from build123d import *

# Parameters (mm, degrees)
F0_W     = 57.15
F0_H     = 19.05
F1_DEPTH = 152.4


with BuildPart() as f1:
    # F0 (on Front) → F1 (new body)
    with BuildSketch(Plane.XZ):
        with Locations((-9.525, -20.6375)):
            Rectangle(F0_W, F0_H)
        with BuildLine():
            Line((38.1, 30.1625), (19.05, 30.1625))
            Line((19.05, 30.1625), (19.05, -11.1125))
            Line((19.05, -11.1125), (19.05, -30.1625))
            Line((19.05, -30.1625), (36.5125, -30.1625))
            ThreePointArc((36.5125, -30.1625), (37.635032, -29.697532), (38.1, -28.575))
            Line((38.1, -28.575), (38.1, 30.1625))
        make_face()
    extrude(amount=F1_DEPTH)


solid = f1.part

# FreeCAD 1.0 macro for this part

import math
import FreeCAD as App
import Part
import Sketcher

V = App.Vector
Q = App.Units.Quantity

doc = App.newDocument("Part")
body = doc.addObject("PartDesign::Body", "Body")

sketch1 = body.newObject("Sketcher::SketchObject", "Sketch")
sketch1.AttachmentSupport = (doc.getObject("XZ_Plane"), [""])
sketch1.MapMode = "FlatFace"
sketch1.addGeometry([
    Part.LineSegment(V(-38.1, -11.1, 0), V(-38.1, -30.2, 0)),
    Part.LineSegment(V(-38.1, -30.2, 0), V(36.5, -30.2, 0)),
    Part.ArcOfCircle(Part.Circle(V(36.5, -28.6, 0), V(0, 0, 1), 1.6), math.radians(-90), math.radians(0)),
    Part.LineSegment(V(38.1, -28.6, 0), V(38.1, 30.2, 0)),
    Part.LineSegment(V(38.1, 30.2, 0), V(19.1, 30.2, 0)),
    Part.LineSegment(V(19.1, 30.2, 0), V(19.1, -11.1, 0)),
    Part.LineSegment(V(19.1, -11.1, 0), V(-38.1, -11.1, 0)),
], False)
sketch1.addConstraint([
    Sketcher.Constraint("Coincident", 0, 2, 1, 1),
    Sketcher.Constraint("Tangent", 1, 2, 2, 1),
    Sketcher.Constraint("Tangent", 2, 2, 3, 1),
    Sketcher.Constraint("Coincident", 3, 2, 4, 1),
    Sketcher.Constraint("Coincident", 4, 2, 5, 1),
    Sketcher.Constraint("Coincident", 5, 2, 6, 1),
    Sketcher.Constraint("Coincident", 6, 2, 0, 1),
    Sketcher.Constraint("Vertical", 0),
    Sketcher.Constraint("Horizontal", 1),
    Sketcher.Constraint("Vertical", 3),
    Sketcher.Constraint("Horizontal", 4),
    Sketcher.Constraint("Vertical", 5),
    Sketcher.Constraint("Horizontal", 6),
    Sketcher.Constraint("Symmetric", 0, 2, 3, 2, -1, 1),
    Sketcher.Constraint("Equal", 4, 0),
    Sketcher.Constraint("Radius", 2, Q("0.0625 in")),
    Sketcher.Constraint("DistanceX", 0, 2, 2, 2, Q("3 in")),
    Sketcher.Constraint("DistanceX", 4, 2, 4, 1, Q("0.75 in")),
    Sketcher.Constraint("DistanceY", 3, 1, 3, 2, Q("2.3125 in")),
])
pad1 = body.newObject("PartDesign::Pad", "Pad")
pad1.Profile = sketch1
pad1.Length = Q("6 in")

doc.recompute()
